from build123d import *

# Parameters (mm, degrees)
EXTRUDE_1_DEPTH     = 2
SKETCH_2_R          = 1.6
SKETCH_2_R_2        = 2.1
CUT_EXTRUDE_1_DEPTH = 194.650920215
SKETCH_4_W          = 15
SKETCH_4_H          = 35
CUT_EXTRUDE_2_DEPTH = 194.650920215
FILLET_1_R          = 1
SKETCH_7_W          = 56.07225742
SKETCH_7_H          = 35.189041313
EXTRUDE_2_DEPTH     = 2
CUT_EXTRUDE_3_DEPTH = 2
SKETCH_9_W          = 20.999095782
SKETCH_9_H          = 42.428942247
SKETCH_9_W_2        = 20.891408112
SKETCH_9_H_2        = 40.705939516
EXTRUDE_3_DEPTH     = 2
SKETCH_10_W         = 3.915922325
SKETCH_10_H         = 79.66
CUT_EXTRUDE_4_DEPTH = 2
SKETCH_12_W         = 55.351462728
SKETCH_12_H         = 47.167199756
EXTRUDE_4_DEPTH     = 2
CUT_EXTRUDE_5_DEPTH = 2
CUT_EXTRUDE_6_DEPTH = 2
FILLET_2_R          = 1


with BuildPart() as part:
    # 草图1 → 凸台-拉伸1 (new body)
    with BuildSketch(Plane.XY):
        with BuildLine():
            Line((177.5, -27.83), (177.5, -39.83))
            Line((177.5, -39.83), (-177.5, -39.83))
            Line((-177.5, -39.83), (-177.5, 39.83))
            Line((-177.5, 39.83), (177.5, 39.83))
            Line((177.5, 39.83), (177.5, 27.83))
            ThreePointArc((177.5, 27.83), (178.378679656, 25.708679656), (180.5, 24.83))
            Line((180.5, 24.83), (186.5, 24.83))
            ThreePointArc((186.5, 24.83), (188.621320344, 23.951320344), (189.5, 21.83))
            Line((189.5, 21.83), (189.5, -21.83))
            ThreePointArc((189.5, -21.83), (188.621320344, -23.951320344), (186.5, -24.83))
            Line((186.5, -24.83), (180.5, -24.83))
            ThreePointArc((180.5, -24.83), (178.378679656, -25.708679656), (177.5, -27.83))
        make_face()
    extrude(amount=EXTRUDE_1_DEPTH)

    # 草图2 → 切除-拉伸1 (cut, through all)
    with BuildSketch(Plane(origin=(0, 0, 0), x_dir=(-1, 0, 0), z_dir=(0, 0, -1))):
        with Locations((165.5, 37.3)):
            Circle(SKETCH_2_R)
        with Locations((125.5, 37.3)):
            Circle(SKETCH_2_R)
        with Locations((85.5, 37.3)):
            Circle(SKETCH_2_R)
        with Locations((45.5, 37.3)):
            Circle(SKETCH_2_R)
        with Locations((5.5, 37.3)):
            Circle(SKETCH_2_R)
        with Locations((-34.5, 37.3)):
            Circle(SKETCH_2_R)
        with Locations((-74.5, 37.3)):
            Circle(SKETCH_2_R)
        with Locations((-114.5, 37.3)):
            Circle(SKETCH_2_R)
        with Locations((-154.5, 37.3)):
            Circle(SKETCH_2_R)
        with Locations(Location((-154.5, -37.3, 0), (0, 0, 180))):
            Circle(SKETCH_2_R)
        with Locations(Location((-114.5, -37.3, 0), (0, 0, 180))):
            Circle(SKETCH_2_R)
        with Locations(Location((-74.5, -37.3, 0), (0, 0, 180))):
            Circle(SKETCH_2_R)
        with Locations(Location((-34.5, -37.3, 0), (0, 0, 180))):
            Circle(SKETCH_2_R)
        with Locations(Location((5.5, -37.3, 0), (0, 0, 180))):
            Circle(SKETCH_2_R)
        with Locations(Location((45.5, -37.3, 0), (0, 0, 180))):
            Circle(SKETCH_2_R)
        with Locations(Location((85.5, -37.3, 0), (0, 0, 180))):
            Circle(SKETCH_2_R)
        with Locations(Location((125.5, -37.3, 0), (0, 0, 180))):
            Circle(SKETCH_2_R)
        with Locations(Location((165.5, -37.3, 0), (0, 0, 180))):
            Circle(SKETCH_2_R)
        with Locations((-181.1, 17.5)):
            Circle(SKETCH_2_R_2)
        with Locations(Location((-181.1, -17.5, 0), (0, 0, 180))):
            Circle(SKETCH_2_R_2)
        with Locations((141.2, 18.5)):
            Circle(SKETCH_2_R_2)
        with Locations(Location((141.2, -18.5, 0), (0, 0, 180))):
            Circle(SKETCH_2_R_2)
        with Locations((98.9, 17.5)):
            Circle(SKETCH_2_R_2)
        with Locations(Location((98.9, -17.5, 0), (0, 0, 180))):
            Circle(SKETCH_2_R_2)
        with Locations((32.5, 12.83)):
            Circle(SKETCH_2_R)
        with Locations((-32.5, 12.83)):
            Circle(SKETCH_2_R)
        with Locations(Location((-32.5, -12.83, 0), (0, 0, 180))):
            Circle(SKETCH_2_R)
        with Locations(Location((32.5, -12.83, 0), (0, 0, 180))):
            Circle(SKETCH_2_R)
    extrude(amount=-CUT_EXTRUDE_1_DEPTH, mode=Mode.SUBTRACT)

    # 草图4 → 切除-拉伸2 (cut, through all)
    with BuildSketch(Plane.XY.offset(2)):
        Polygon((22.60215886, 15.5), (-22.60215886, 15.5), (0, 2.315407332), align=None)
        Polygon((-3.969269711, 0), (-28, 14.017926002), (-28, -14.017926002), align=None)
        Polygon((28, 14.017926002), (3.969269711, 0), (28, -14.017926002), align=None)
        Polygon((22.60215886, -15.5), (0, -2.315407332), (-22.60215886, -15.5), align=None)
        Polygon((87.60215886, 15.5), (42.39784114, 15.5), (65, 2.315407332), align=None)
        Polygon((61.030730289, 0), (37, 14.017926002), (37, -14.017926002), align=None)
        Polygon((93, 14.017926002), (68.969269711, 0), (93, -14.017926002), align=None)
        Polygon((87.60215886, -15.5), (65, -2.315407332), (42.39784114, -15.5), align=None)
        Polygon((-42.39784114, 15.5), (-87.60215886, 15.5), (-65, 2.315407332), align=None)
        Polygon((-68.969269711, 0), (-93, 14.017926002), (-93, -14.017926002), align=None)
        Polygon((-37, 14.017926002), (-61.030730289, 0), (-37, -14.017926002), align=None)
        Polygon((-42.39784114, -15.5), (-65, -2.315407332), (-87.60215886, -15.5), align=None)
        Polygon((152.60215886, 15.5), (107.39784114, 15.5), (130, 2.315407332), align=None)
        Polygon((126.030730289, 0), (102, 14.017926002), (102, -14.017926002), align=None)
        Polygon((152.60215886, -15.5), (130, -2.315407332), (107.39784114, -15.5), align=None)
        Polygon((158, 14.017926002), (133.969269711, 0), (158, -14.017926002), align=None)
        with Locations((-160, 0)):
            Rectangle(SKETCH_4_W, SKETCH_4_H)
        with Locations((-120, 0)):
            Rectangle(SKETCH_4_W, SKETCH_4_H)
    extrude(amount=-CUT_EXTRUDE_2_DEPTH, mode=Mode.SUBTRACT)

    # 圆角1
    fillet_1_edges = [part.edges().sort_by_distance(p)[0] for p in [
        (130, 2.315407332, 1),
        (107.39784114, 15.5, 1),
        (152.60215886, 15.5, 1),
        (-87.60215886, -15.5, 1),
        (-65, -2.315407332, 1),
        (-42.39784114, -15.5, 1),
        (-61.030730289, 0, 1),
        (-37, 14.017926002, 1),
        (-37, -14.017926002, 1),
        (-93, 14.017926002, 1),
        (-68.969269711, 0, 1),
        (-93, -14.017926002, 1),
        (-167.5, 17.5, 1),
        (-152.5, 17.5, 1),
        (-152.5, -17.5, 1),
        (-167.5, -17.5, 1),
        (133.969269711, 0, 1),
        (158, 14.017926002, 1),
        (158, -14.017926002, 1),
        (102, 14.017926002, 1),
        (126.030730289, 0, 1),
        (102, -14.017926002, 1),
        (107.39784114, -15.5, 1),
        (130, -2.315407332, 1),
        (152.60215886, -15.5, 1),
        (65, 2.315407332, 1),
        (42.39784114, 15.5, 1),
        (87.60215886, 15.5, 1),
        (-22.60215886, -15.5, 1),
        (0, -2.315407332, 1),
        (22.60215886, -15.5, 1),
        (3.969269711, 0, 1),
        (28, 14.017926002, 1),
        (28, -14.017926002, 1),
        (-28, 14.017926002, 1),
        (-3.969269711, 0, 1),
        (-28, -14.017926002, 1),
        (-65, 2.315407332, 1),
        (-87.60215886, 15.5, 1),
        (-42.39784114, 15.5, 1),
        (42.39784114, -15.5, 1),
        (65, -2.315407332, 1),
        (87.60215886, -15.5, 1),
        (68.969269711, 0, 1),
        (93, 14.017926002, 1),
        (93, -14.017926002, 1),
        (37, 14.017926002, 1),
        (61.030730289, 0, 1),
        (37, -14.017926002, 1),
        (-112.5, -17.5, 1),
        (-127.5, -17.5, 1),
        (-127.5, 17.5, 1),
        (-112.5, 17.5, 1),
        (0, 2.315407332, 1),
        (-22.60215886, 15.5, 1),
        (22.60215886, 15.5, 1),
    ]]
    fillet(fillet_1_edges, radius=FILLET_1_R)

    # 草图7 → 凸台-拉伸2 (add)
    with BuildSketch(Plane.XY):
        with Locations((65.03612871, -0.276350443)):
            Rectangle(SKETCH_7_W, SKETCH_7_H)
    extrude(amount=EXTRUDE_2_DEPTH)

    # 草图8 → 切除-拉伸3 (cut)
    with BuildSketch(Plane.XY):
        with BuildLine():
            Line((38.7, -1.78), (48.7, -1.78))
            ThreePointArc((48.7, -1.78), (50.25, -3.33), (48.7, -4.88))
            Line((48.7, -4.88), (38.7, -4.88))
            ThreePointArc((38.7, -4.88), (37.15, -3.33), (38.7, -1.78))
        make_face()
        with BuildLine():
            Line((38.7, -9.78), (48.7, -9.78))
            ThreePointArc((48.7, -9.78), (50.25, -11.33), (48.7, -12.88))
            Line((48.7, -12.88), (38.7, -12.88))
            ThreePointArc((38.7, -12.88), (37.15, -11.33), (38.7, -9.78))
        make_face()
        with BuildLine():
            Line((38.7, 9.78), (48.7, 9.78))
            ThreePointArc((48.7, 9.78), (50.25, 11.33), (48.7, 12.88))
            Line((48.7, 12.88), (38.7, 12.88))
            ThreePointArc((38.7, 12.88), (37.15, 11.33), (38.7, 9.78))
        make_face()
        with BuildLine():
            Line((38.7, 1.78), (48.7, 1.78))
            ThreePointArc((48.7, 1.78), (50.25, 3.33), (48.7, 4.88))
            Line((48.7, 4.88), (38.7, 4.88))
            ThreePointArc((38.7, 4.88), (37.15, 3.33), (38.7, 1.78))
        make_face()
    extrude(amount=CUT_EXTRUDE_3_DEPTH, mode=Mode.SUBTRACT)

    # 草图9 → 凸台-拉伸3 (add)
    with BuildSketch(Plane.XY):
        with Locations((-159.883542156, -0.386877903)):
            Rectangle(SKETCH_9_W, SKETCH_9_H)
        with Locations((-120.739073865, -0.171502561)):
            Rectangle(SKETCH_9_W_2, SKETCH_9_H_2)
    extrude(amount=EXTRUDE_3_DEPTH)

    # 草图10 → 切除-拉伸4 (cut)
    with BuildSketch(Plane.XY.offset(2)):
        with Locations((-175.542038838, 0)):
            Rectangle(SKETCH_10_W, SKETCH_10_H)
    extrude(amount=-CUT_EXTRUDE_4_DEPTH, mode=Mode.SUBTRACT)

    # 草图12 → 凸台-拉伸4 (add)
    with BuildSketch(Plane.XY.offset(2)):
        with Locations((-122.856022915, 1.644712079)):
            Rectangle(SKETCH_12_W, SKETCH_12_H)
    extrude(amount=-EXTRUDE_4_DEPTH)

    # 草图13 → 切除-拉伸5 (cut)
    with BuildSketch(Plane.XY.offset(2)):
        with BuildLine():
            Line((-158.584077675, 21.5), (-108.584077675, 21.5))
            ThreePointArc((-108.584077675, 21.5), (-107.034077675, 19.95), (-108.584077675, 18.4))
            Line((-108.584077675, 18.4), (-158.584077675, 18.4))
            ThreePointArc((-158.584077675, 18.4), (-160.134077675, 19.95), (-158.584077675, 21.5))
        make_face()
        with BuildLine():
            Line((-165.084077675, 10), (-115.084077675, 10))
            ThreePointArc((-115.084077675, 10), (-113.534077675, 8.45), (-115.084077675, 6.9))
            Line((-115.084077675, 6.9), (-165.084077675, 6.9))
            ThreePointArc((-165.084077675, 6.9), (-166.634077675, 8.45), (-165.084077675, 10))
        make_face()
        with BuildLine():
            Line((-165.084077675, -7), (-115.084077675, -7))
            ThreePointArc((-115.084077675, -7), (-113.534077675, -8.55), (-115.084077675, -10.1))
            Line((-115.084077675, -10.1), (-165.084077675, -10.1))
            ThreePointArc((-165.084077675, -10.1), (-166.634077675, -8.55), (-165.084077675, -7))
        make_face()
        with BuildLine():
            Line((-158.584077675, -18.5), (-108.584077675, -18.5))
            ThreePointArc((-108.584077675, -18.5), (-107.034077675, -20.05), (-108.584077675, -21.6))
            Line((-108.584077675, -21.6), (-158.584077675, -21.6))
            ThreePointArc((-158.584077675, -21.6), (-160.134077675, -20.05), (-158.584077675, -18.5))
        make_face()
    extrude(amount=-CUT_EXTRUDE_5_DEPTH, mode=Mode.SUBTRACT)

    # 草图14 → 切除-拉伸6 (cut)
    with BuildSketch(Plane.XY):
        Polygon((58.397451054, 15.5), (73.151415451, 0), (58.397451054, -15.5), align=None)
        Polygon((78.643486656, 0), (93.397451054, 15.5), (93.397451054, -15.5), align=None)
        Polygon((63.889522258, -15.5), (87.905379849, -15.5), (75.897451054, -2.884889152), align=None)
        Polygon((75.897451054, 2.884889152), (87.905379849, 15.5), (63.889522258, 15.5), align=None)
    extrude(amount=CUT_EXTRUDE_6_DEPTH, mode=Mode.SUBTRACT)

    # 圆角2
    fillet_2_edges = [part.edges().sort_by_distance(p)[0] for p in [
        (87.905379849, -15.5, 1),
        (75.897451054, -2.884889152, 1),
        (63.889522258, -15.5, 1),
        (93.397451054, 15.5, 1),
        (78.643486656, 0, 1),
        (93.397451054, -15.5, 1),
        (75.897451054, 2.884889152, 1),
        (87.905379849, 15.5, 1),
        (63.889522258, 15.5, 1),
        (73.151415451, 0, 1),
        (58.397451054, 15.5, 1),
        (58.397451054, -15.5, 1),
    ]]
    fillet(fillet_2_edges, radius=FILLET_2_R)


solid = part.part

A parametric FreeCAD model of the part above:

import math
import FreeCAD as App
import Part
import Sketcher
Q = App.Units.Quantity


def edges_at(feature, points):
    """Names of the edges that pass closest to the given points."""
    edges = feature.Shape.Edges
    near = lambda p: min(range(len(edges)), key=lambda i: edges[i].distToShape(Part.Vertex(*p))[0])
    return sorted({f"Edge{near(p) + 1}" for p in points})


def add_polygon(sketch, points):
    """Adds a closed chain of lines whose ends are joined by coincident constraints."""
    first, n = sketch.GeometryCount, len(points)
    for a, b in zip(points, points[1:] + points[:1]):
        sketch.addGeometry(Part.LineSegment(App.Vector(*a, 0), App.Vector(*b, 0)), False)
    for i in range(n):
        sketch.addConstraint(Sketcher.Constraint("Coincident", first + i, 2, first + (i + 1) % n, 1))

doc = App.newDocument("Part")
body = doc.addObject("PartDesign::Body", "Body")

# Sketch on XY plane
sketch1 = doc.addObject("Sketcher::SketchObject", "Sketch")
body.addObject(sketch1)
sketch1.AttachmentSupport = (doc.XY_Plane, [""])
sketch1.MapMode = "FlatFace"
sketch1.addGeometry([
    Part.LineSegment(App.Vector(177.5, -39.83, 0), App.Vector(177.5, -27.83, 0)),  # 0
    Part.ArcOfCircle(Part.Circle(App.Vector(180.5, -27.83, 0), App.Vector(0, 0, 1), 3), math.radians(90), math.radians(180)),  # 1
    Part.LineSegment(App.Vector(180.5, -24.83, 0), App.Vector(186.5, -24.83, 0)),  # 2
    Part.ArcOfCircle(Part.Circle(App.Vector(186.5, -21.83, 0), App.Vector(0, 0, 1), 3), math.radians(-90), math.radians(0)),  # 3
    Part.LineSegment(App.Vector(189.5, -21.83, 0), App.Vector(189.5, 21.83, 0)),  # 4
    Part.ArcOfCircle(Part.Circle(App.Vector(186.5, 21.83, 0), App.Vector(0, 0, 1), 3), math.radians(0), math.radians(90)),  # 5
    Part.LineSegment(App.Vector(186.5, 24.83, 0), App.Vector(180.5, 24.83, 0)),  # 6
    Part.ArcOfCircle(Part.Circle(App.Vector(180.5, 27.83, 0), App.Vector(0, 0, 1), 3), math.radians(180), math.radians(270)),  # 7
    Part.LineSegment(App.Vector(177.5, 27.83, 0), App.Vector(177.5, 39.83, 0)),  # 8
    Part.LineSegment(App.Vector(177.5, 39.83, 0), App.Vector(-177.5, 39.83, 0)),  # 9
    Part.LineSegment(App.Vector(-177.5, 39.83, 0), App.Vector(-177.5, -39.83, 0)),  # 10
    Part.LineSegment(App.Vector(-177.5, -39.83, 0), App.Vector(177.5, -39.83, 0)),  # 11
], False)
sketch1.addConstraint([
    Sketcher.Constraint("Tangent", 0, 2, 1, 2),
    Sketcher.Constraint("Tangent", 1, 1, 2, 1),
    Sketcher.Constraint("Tangent", 2, 2, 3, 1),
    Sketcher.Constraint("Tangent", 3, 2, 4, 1),
    Sketcher.Constraint("Tangent", 4, 2, 5, 1),
    Sketcher.Constraint("Tangent", 5, 2, 6, 1),
    Sketcher.Constraint("Tangent", 6, 2, 7, 2),
    Sketcher.Constraint("Tangent", 7, 1, 8, 1),
    Sketcher.Constraint("Coincident", 8, 2, 9, 1),
    Sketcher.Constraint("Coincident", 9, 2, 10, 1),
    Sketcher.Constraint("Coincident", 10, 2, 11, 1),
    Sketcher.Constraint("Coincident", 11, 2, 0, 1),
    Sketcher.Constraint("Vertical", 0),
    Sketcher.Constraint("Horizontal", 2),
    Sketcher.Constraint("Vertical", 4),
    Sketcher.Constraint("Horizontal", 6),
    Sketcher.Constraint("Vertical", 8),
    Sketcher.Constraint("Horizontal", 9),
    Sketcher.Constraint("Vertical", 10),
    Sketcher.Constraint("Horizontal", 11),
    Sketcher.Constraint("Equal", 1, 3),
    Sketcher.Constraint("Equal", 3, 5),
    Sketcher.Constraint("Equal", 5, 7),
    Sketcher.Constraint("Symmetric", 8, 2, 10, 2, -1, 1),
    Sketcher.Constraint("Symmetric", 1, 3, 7, 3, -1),
    Sketcher.Constraint("Radius", 1, Q("3 mm")),
    Sketcher.Constraint("DistanceX", 2, 1, 2, 2, Q("6 mm")),
    Sketcher.Constraint("DistanceX", 9, 2, 9, 1, Q("355 mm")),
    Sketcher.Constraint("DistanceY", 0, 1, 0, 2, Q("12 mm")),
    Sketcher.Constraint("DistanceY", 4, 1, 4, 2, Q("43.66 mm")),
])
pad1 = doc.addObject("PartDesign::Pad", "Pad")
body.addObject(pad1)
pad1.Profile = sketch1
pad1.Length = 2

# Sketch on XY plane
sketch2 = doc.addObject("Sketcher::SketchObject", "Sketch001")
body.addObject(sketch2)
sketch2.AttachmentSupport = (doc.XY_Plane, [""])
sketch2.MapMode = "FlatFace"
sketch2.addGeometry([
    Part.Circle(App.Vector(-165.5, 37.3, 0), App.Vector(0, 0, 1), 1.6),  # 0
    Part.Circle(App.Vector(-125.5, 37.3, 0), App.Vector(0, 0, 1), 1.6),  # 1
    Part.Circle(App.Vector(-85.5, 37.3, 0), App.Vector(0, 0, 1), 1.6),  # 2
    Part.Circle(App.Vector(-45.5, 37.3, 0), App.Vector(0, 0, 1), 1.6),  # 3
    Part.Circle(App.Vector(-5.5, 37.3, 0), App.Vector(0, 0, 1), 1.6),  # 4
    Part.Circle(App.Vector(34.5, 37.3, 0), App.Vector(0, 0, 1), 1.6),  # 5
    Part.Circle(App.Vector(74.5, 37.3, 0), App.Vector(0, 0, 1), 1.6),  # 6
    Part.Circle(App.Vector(114.5, 37.3, 0), App.Vector(0, 0, 1), 1.6),  # 7
    Part.Circle(App.Vector(154.5, 37.3, 0), App.Vector(0, 0, 1), 1.6),  # 8
    Part.Circle(App.Vector(154.5, -37.3, 0), App.Vector(0, 0, 1), 1.6),  # 9
    Part.Circle(App.Vector(114.5, -37.3, 0), App.Vector(0, 0, 1), 1.6),  # 10
    Part.Circle(App.Vector(74.5, -37.3, 0), App.Vector(0, 0, 1), 1.6),  # 11
    Part.Circle(App.Vector(34.5, -37.3, 0), App.Vector(0, 0, 1), 1.6),  # 12
    Part.Circle(App.Vector(-5.5, -37.3, 0), App.Vector(0, 0, 1), 1.6),  # 13
    Part.Circle(App.Vector(-45.5, -37.3, 0), App.Vector(0, 0, 1), 1.6),  # 14
    Part.Circle(App.Vector(-85.5, -37.3, 0), App.Vector(0, 0, 1), 1.6),  # 15
    Part.Circle(App.Vector(-125.5, -37.3, 0), App.Vector(0, 0, 1), 1.6),  # 16
    Part.Circle(App.Vector(-165.5, -37.3, 0), App.Vector(0, 0, 1), 1.6),  # 17
    Part.Circle(App.Vector(181.1, 17.5, 0), App.Vector(0, 0, 1), 2.1),  # 18
    Part.Circle(App.Vector(181.1, -17.5, 0), App.Vector(0, 0, 1), 2.1),  # 19
    Part.Circle(App.Vector(-141.2, 18.5, 0), App.Vector(0, 0, 1), 2.1),  # 20
    Part.Circle(App.Vector(-141.2, -18.5, 0), App.Vector(0, 0, 1), 2.1),  # 21
    Part.Circle(App.Vector(-98.9, 17.5, 0), App.Vector(0, 0, 1), 2.1),  # 22
    Part.Circle(App.Vector(-98.9, -17.5, 0), App.Vector(0, 0, 1), 2.1),  # 23
    Part.Circle(App.Vector(-32.5, 12.83, 0), App.Vector(0, 0, 1), 1.6),  # 24
    Part.Circle(App.Vector(32.5, 12.83, 0), App.Vector(0, 0, 1), 1.6),  # 25
    Part.Circle(App.Vector(32.5, -12.83, 0), App.Vector(0, 0, 1), 1.6),  # 26
    Part.Circle(App.Vector(-32.5, -12.83, 0), App.Vector(0, 0, 1), 1.6),  # 27
], False)
sketch2.addConstraint([
    Sketcher.Constraint("Equal", 0, 1),
    Sketcher.Constraint("Equal", 1, 2),
    Sketcher.Constraint("Equal", 2, 3),
    Sketcher.Constraint("Equal", 3, 4),
    Sketcher.Constraint("Equal", 4, 5),
    Sketcher.Constraint("Equal", 5, 6),
    Sketcher.Constraint("Equal", 6, 7),
    Sketcher.Constraint("Equal", 7, 8),
    Sketcher.Constraint("Equal", 8, 9),
    Sketcher.Constraint("Equal", 9, 10),
    Sketcher.Constraint("Equal", 10, 11),
    Sketcher.Constraint("Equal", 11, 12),
    Sketcher.Constraint("Equal", 12, 13),
    Sketcher.Constraint("Equal", 13, 14),
    Sketcher.Constraint("Equal", 14, 15),
    Sketcher.Constraint("Equal", 15, 16),
    Sketcher.Constraint("Equal", 16, 17),
    Sketcher.Constraint("Equal", 18, 19),
    Sketcher.Constraint("Equal", 19, 20),
    Sketcher.Constraint("Equal", 20, 21),
    Sketcher.Constraint("Equal", 21, 22),
    Sketcher.Constraint("Equal", 22, 23),
    Sketcher.Constraint("Equal", 17, 24),
    Sketcher.Constraint("Equal", 24, 25),
    Sketcher.Constraint("Equal", 25, 26),
    Sketcher.Constraint("Equal", 26, 27),
    Sketcher.Constraint("Symmetric", 24, 3, 26, 3, -1, 1),
    Sketcher.Constraint("Symmetric", 25, 3, 27, 3, -1, 1),
    Sketcher.Constraint("Symmetric", 24, 3, 25, 3, -2),
    Sketcher.Constraint("Symmetric", 8, 3, 9, 3, -1),
    Sketcher.Constraint("Symmetric", 7, 3, 10, 3, -1),
    Sketcher.Constraint("Symmetric", 6, 3, 11, 3, -1),
    Sketcher.Constraint("Symmetric", 5, 3, 12, 3, -1),
    Sketcher.Constraint("Symmetric", 4, 3, 13, 3, -1),
    Sketcher.Constraint("Symmetric", 3, 3, 14, 3, -1),
    Sketcher.Constraint("Symmetric", 2, 3, 15, 3, -1),
    Sketcher.Constraint("Symmetric", 1, 3, 16, 3, -1),
    Sketcher.Constraint("Symmetric", 0, 3, 17, 3, -1),
    Sketcher.Constraint("Symmetric", 18, 3, 19, 3, -1),
    Sketcher.Constraint("Symmetric", 20, 3, 21, 3, -1),
    Sketcher.Constraint("Symmetric", 22, 3, 23, 3, -1),
    Sketcher.Constraint("Horizontal", 0, 3, 1, 3),
    Sketcher.Constraint("Horizontal", 1, 3, 2, 3),
    Sketcher.Constraint("Horizontal", 2, 3, 3, 3),
    Sketcher.Constraint("Horizontal", 3, 3, 4, 3),
    Sketcher.Constraint("Horizontal", 4, 3, 5, 3),
    Sketcher.Constraint("Horizontal", 5, 3, 6, 3),
    Sketcher.Constraint("Horizontal", 6, 3, 7, 3),
    Sketcher.Constraint("Horizontal", 7, 3, 8, 3),
    Sketcher.Constraint("Horizontal", 18, 3, 22, 3),
    Sketcher.Constraint("Diameter", 0, Q("3.2 mm")),
    Sketcher.Constraint("Diameter", 18, Q("4.2 mm")),
    Sketcher.Constraint("DistanceX", 0, 3, 1, 3, Q("40 mm")),
    Sketcher.Constraint("DistanceX", 1, 3, 2, 3, Q("40 mm")),
    Sketcher.Constraint("DistanceX", 2, 3, 3, 3, Q("40 mm")),
    Sketcher.Constraint("DistanceX", 3, 3, 4, 3, Q("40 mm")),
    Sketcher.Constraint("DistanceX", 4, 3, 5, 3, Q("40 mm")),
    Sketcher.Constraint("DistanceX", 5, 3, 6, 3, Q("40 mm")),
    Sketcher.Constraint("DistanceX", 6, 3, 7, 3, Q("40 mm")),
    Sketcher.Constraint("DistanceX", 7, 3, 8, 3, Q("40 mm")),
    Sketcher.Constraint("DistanceY", 19, 3, 18, 3, Q("35 mm")),
    Sketcher.Constraint("DistanceY", 21, 3, 20, 3, Q("37 mm")),
    Sketcher.Constraint("DistanceX", 3, 3, 24, 3, Q("13 mm")),
    Sketcher.Constraint("DistanceX", 25, 3, 5, 3, Q("2 mm")),
    Sketcher.Constraint("DistanceY", -1, 1, 0, 3, Q("37.3 mm")),
    Sketcher.Constraint("DistanceX", -1, 1, 18, 3, Q("181.1 mm")),
    Sketcher.Constraint("DistanceX", 20, 3, -1, 1, Q("141.2 mm")),
    Sketcher.Constraint("DistanceX", 22, 3, -1, 1, Q("98.9 mm")),
    Sketcher.Constraint("DistanceY", -1, 1, 24, 3, Q("12.83 mm")),
])
pocket1 = doc.addObject("PartDesign::Pocket", "Pocket")
body.addObject(pocket1)
pocket1.Profile = sketch2
pocket1.Type = "ThroughAll"
pocket1.Reversed = True

# Sketch on XY plane
sketch3 = doc.addObject("Sketcher::SketchObject", "Sketch002")
body.addObject(sketch3)
sketch3.AttachmentSupport = (doc.XY_Plane, [""])
sketch3.MapMode = "FlatFace"
sketch3.AttachmentOffset = App.Placement(App.Vector(0, 0, 2), App.Rotation())
add_polygon(sketch3, [(22.602159, 15.5), (-22.602159, 15.5), (0, 2.315407)])  # lines 0-2
add_polygon(sketch3, [(-3.96927, 0), (-28, 14.017926), (-28, -14.017926)])  # lines 3-5
add_polygon(sketch3, [(28, 14.017926), (3.96927, 0), (28, -14.017926)])  # lines 6-8
add_polygon(sketch3, [(22.602159, -15.5), (0, -2.315407), (-22.602159, -15.5)])  # lines 9-11
add_polygon(sketch3, [(87.602159, 15.5), (42.397841, 15.5), (65, 2.315407)])  # lines 12-14
add_polygon(sketch3, [(61.03073, 0), (37, 14.017926), (37, -14.017926)])  # lines 15-17
add_polygon(sketch3, [(93, 14.017926), (68.96927, 0), (93, -14.017926)])  # lines 18-20
add_polygon(sketch3, [(87.602159, -15.5), (65, -2.315407), (42.397841, -15.5)])  # lines 21-23
add_polygon(sketch3, [(-42.397841, 15.5), (-87.602159, 15.5), (-65, 2.315407)])  # lines 24-26
add_polygon(sketch3, [(-68.96927, 0), (-93, 14.017926), (-93, -14.017926)])  # lines 27-29
add_polygon(sketch3, [(-37, 14.017926), (-61.03073, 0), (-37, -14.017926)])  # lines 30-32
add_polygon(sketch3, [(-42.397841, -15.5), (-65, -2.315407), (-87.602159, -15.5)])  # lines 33-35
add_polygon(sketch3, [(152.602159, 15.5), (107.397841, 15.5), (130, 2.315407)])  # lines 36-38
add_polygon(sketch3, [(126.03073, 0), (102, 14.017926), (102, -14.017926)])  # lines 39-41
add_polygon(sketch3, [(152.602159, -15.5), (130, -2.315407), (107.397841, -15.5)])  # lines 42-44
add_polygon(sketch3, [(158, 14.017926), (133.96927, 0), (158, -14.017926)])  # lines 45-47
add_polygon(sketch3, [(-167.5, 17.5), (-167.5, -17.5), (-152.5, -17.5), (-152.5, 17.5)])  # lines 48-51
add_polygon(sketch3, [(-127.5, 17.5), (-127.5, -17.5), (-112.5, -17.5), (-112.5, 17.5)])  # lines 52-55
sketch3.addConstraint([
    Sketcher.Constraint("Horizontal", 0),
    Sketcher.Constraint("Vertical", 4),
    Sketcher.Constraint("Vertical", 8),
    Sketcher.Constraint("Horizontal", 11),
    Sketcher.Constraint("Horizontal", 12),
    Sketcher.Constraint("Vertical", 16),
    Sketcher.Constraint("Vertical", 20),
    Sketcher.Constraint("Horizontal", 23),
    Sketcher.Constraint("Horizontal", 24),
    Sketcher.Constraint("Vertical", 28),
    Sketcher.Constraint("Vertical", 32),
    Sketcher.Constraint("Horizontal", 35),
    Sketcher.Constraint("Horizontal", 36),
    Sketcher.Constraint("Vertical", 40),
    Sketcher.Constraint("Horizontal", 44),
    Sketcher.Constraint("Vertical", 47),
    Sketcher.Constraint("Vertical", 48),
    Sketcher.Constraint("Horizontal", 49),
    Sketcher.Constraint("Vertical", 50),
    Sketcher.Constraint("Horizontal", 51),
    Sketcher.Constraint("Vertical", 52),
    Sketcher.Constraint("Horizontal", 53),
    Sketcher.Constraint("Vertical", 54),
    Sketcher.Constraint("Horizontal", 55),
    Sketcher.Constraint("Symmetric", 5, 2, 6, 2, -1, 1),
    Sketcher.Constraint("Symmetric", 3, 2, 7, 2, -1, 1),
    Sketcher.Constraint("Symmetric", 1, 2, 9, 2, -1, 1),
    Sketcher.Constraint("Symmetric", 2, 2, 10, 2, -1, 1),
    Sketcher.Constraint("Symmetric", 23, 2, 24, 2, -1, 1),
    Sketcher.Constraint("Symmetric", 21, 2, 25, 2, -1, 1),
    Sketcher.Constraint("Symmetric", 19, 2, 27, 2, -1, 1),
    Sketcher.Constraint("Symmetric", 18, 2, 29, 2, -1, 1),
    Sketcher.Constraint("Symmetric", 17, 2, 30, 2, -1, 1),
    Sketcher.Constraint("Symmetric", 15, 2, 31, 2, -1, 1),
    Sketcher.Constraint("Symmetric", 13, 2, 33, 2, -1, 1),
    Sketcher.Constraint("Symmetric", 14, 2, 34, 2, -1, 1),
    Sketcher.Constraint("Symmetric", 14, 2, 24, 2, -2),
    Sketcher.Constraint("Symmetric", 13, 2, 25, 2, -2),
    Sketcher.Constraint("Symmetric", 37, 2, 42, 2, -1),
    Sketcher.Constraint("Symmetric", 36, 2, 43, 2, -1),
    Sketcher.Constraint("PointOnObject", 1, 2, -2),
    Sketcher.Constraint("PointOnObject", 5, 2, -1),
    Sketcher.Constraint("PointOnObject", 17, 2, -1),
    Sketcher.Constraint("PointOnObject", 18, 2, -1),
    Sketcher.Constraint("PointOnObject", 41, 2, -1),
    Sketcher.Constraint("PointOnObject", 45, 2, -1),
    Sketcher.Constraint("Parallel", 1, 3),
    Sketcher.Constraint("Parallel", 2, 5),
    Sketcher.Constraint("Parallel", 5, 6),
    Sketcher.Constraint("Parallel", 7, 9),
    Sketcher.Constraint("Parallel", 9, 13),
    Sketcher.Constraint("Parallel", 10, 14),
    Sketcher.Constraint("Parallel", 13, 15),
    Sketcher.Constraint("Parallel", 14, 17),
    Sketcher.Constraint("Parallel", 17, 18),
    Sketcher.Constraint("Parallel", 15, 19),
    Sketcher.Constraint("Parallel", 19, 21),
    Sketcher.Constraint("Parallel", 18, 22),
    Sketcher.Constraint("Parallel", 22, 26),
    Sketcher.Constraint("Parallel", 26, 29),
    Sketcher.Constraint("Parallel", 29, 30),
    Sketcher.Constraint("Parallel", 31, 33),
    Sketcher.Constraint("Parallel", 33, 37),
    Sketcher.Constraint("Parallel", 34, 38),
    Sketcher.Constraint("Parallel", 37, 39),
    Sketcher.Constraint("Parallel", 38, 41),
    Sketcher.Constraint("Parallel", 39, 42),
    Sketcher.Constraint("Parallel", 43, 45),
    Sketcher.Constraint("Parallel", 42, 46),
    Sketcher.Constraint("Horizontal", 2, 2, 12, 2),
    Sketcher.Constraint("Horizontal", 1, 2, 13, 2),
    Sketcher.Constraint("Horizontal", 8, 2, 15, 2),
    Sketcher.Constraint("Horizontal", 16, 2, 19, 2),
    Sketcher.Constraint("Horizontal", 26, 2, 36, 2),
    Sketcher.Constraint("Horizontal", 25, 2, 37, 2),
    Sketcher.Constraint("Horizontal", 32, 2, 39, 2),
    Sketcher.Constraint("Horizontal", 40, 2, 46, 2),
    Sketcher.Constraint("Horizontal", 49, 2, 52, 2),
    Sketcher.Constraint("Horizontal", 51, 2, 54, 2),
    Sketcher.Constraint("Equal", 51, 53),
    Sketcher.Constraint("DistanceX", 49, 1, 49, 2, Q("15 mm")),
    Sketcher.Constraint("DistanceY", 48, 2, 48, 1, Q("35 mm")),
    Sketcher.Constraint("DistanceX", 3, 2, -1, 1, Q("28 mm")),
    Sketcher.Constraint("DistanceX", -1, 1, 13, 2, Q("65 mm")),
    Sketcher.Constraint("DistanceX", -1, 1, 15, 2, Q("37 mm")),
    Sketcher.Constraint("DistanceX", -1, 1, 19, 2, Q("93 mm")),
    Sketcher.Constraint("DistanceX", -1, 1, 37, 2, Q("130 mm")),
    Sketcher.Constraint("DistanceX", -1, 1, 39, 2, Q("102 mm")),
    Sketcher.Constraint("DistanceX", -1, 1, 46, 2, Q("158 mm")),
    Sketcher.Constraint("DistanceY", 11, 2, 12, 2, Q("31 mm")),
    Sketcher.Constraint("DistanceY", 48, 2, 34, 2, Q("2 mm")),
    Sketcher.Constraint("DistanceX", 49, 2, 52, 2, Q("25 mm")),
    Sketcher.Constraint("DistanceX", 48, 2, -1, 1, Q("167.5 mm")),
    Sketcher.Constraint("DistanceX", 0, 2, 0, 1, Q("45.204318 mm")),
    Sketcher.Constraint("DistanceY", 4, 2, 4, 1, Q("28.035852 mm")),
    Sketcher.Constraint("DistanceX", 5, 2, -1, 1, Q("3.96927 mm")),
])
pocket2 = doc.addObject("PartDesign::Pocket", "Pocket001")
body.addObject(pocket2)
pocket2.Profile = sketch3
pocket2.Type = "ThroughAll"
doc.recompute()

fillet = doc.addObject("PartDesign::Fillet", "Fillet")
body.addObject(fillet)
fillet.Base = (pocket2, edges_at(pocket2, [
    (130, 2.315, 1),
    (107.398, 15.5, 1),
    (152.602, 15.5, 1),
    (-87.602, -15.5, 1),
    (-65, -2.315, 1),
    (-42.398, -15.5, 1),
    (-61.031, 0, 1),
    (-37, 14.018, 1),
    (-37, -14.018, 1),
    (-93, 14.018, 1),
    (-68.969, 0, 1),
    (-93, -14.018, 1),
    (-167.5, 17.5, 1),
    (-152.5, 17.5, 1),
    (-152.5, -17.5, 1),
    (-167.5, -17.5, 1),
    (133.969, 0, 1),
    (158, 14.018, 1),
    (158, -14.018, 1),
    (102, 14.018, 1),
    (126.031, 0, 1),
    (102, -14.018, 1),
    (107.398, -15.5, 1),
    (130, -2.315, 1),
    (152.602, -15.5, 1),
    (65, 2.315, 1),
    (42.398, 15.5, 1),
    (87.602, 15.5, 1),
    (-22.602, -15.5, 1),
    (0, -2.315, 1),
    (22.602, -15.5, 1),
    (3.969, 0, 1),
    (28, 14.018, 1),
    (28, -14.018, 1),
    (-28, 14.018, 1),
    (-3.969, 0, 1),
    (-28, -14.018, 1),
    (-65, 2.315, 1),
    (-87.602, 15.5, 1),
    (-42.398, 15.5, 1),
    (42.398, -15.5, 1),
    (65, -2.315, 1),
    (87.602, -15.5, 1),
    (68.969, 0, 1),
    (93, 14.018, 1),
    (93, -14.018, 1),
    (37, 14.018, 1),
    (61.031, 0, 1),
    (37, -14.018, 1),
    (-112.5, -17.5, 1),
    (-127.5, -17.5, 1),
    (-127.5, 17.5, 1),
    (-112.5, 17.5, 1),
    (0, 2.315, 1),
    (-22.602, 15.5, 1),
    (22.602, 15.5, 1),
]))
fillet.Radius = 1

# Sketch on XY plane
sketch4 = doc.addObject("Sketcher::SketchObject", "Sketch003")
body.addObject(sketch4)
sketch4.AttachmentSupport = (doc.XY_Plane, [""])
sketch4.MapMode = "FlatFace"
add_polygon(sketch4, [(37, 17.31817), (37, -17.870871), (93.072257, -17.870871), (93.072257, 17.31817)])  # lines 0-3
sketch4.addConstraint([
    Sketcher.Constraint("Vertical", 0),
    Sketcher.Constraint("Horizontal", 1),
    Sketcher.Constraint("Vertical", 2),
    Sketcher.Constraint("Horizontal", 3),
    Sketcher.Constraint("DistanceX", -1, 1, 0, 2, Q("37 mm")),
    Sketcher.Constraint("DistanceY", 0, 2, 0, 1, Q("35.189041 mm")),
    Sketcher.Constraint("DistanceX", 1, 1, 1, 2, Q("56.072257 mm")),
    Sketcher.Constraint("DistanceY", 0, 2, -1, 1, Q("17.870871 mm")),
])
pad2 = doc.addObject("PartDesign::Pad", "Pad001")
body.addObject(pad2)
pad2.Profile = sketch4
pad2.Length = 2

# Sketch on XY plane
sketch5 = doc.addObject("Sketcher::SketchObject", "Sketch004")
body.addObject(sketch5)
sketch5.AttachmentSupport = (doc.XY_Plane, [""])
sketch5.MapMode = "FlatFace"
sketch5.addGeometry([
    Part.LineSegment(App.Vector(48.7, -1.78, 0), App.Vector(38.7, -1.78, 0)),  # 0
    Part.ArcOfCircle(Part.Circle(App.Vector(38.7, -3.33, 0), App.Vector(0, 0, 1), 1.55), math.radians(90), math.radians(270)),  # 1
    Part.LineSegment(App.Vector(38.7, -4.88, 0), App.Vector(48.7, -4.88, 0)),  # 2
    Part.ArcOfCircle(Part.Circle(App.Vector(48.7, -3.33, 0), App.Vector(0, 0, 1), 1.55), math.radians(-90), math.radians(90)),  # 3
    Part.LineSegment(App.Vector(48.7, -9.78, 0), App.Vector(38.7, -9.78, 0)),  # 4
    Part.ArcOfCircle(Part.Circle(App.Vector(38.7, -11.33, 0), App.Vector(0, 0, 1), 1.55), math.radians(90), math.radians(270)),  # 5
    Part.LineSegment(App.Vector(38.7, -12.88, 0), App.Vector(48.7, -12.88, 0)),  # 6
    Part.ArcOfCircle(Part.Circle(App.Vector(48.7, -11.33, 0), App.Vector(0, 0, 1), 1.55), math.radians(-90), math.radians(90)),  # 7
    Part.LineSegment(App.Vector(38.7, 9.78, 0), App.Vector(48.7, 9.78, 0)),  # 8
    Part.ArcOfCircle(Part.Circle(App.Vector(48.7, 11.33, 0), App.Vector(0, 0, 1), 1.55), math.radians(-90), math.radians(90)),  # 9
    Part.LineSegment(App.Vector(48.7, 12.88, 0), App.Vector(38.7, 12.88, 0)),  # 10
    Part.ArcOfCircle(Part.Circle(App.Vector(38.7, 11.33, 0), App.Vector(0, 0, 1), 1.55), math.radians(90), math.radians(270)),  # 11
    Part.LineSegment(App.Vector(38.7, 1.78, 0), App.Vector(48.7, 1.78, 0)),  # 12
    Part.ArcOfCircle(Part.Circle(App.Vector(48.7, 3.33, 0), App.Vector(0, 0, 1), 1.55), math.radians(-90), math.radians(90)),  # 13
    Part.LineSegment(App.Vector(48.7, 4.88, 0), App.Vector(38.7, 4.88, 0)),  # 14
    Part.ArcOfCircle(Part.Circle(App.Vector(38.7, 3.33, 0), App.Vector(0, 0, 1), 1.55), math.radians(90), math.radians(270)),  # 15
], False)
sketch5.addConstraint([
    Sketcher.Constraint("Tangent", 0, 2, 1, 1),
    Sketcher.Constraint("Tangent", 1, 2, 2, 1),
    Sketcher.Constraint("Tangent", 2, 2, 3, 1),
    Sketcher.Constraint("Tangent", 3, 2, 0, 1),
    Sketcher.Constraint("Tangent", 4, 2, 5, 1),
    Sketcher.Constraint("Tangent", 5, 2, 6, 1),
    Sketcher.Constraint("Tangent", 6, 2, 7, 1),
    Sketcher.Constraint("Tangent", 7, 2, 4, 1),
    Sketcher.Constraint("Tangent", 8, 2, 9, 1),
    Sketcher.Constraint("Tangent", 9, 2, 10, 1),
    Sketcher.Constraint("Tangent", 10, 2, 11, 1),
    Sketcher.Constraint("Tangent", 11, 2, 8, 1),
    Sketcher.Constraint("Tangent", 12, 2, 13, 1),
    Sketcher.Constraint("Tangent", 13, 2, 14, 1),
    Sketcher.Constraint("Tangent", 14, 2, 15, 1),
    Sketcher.Constraint("Tangent", 15, 2, 12, 1),
    Sketcher.Constraint("Horizontal", 0),
    Sketcher.Constraint("Horizontal", 2),
    Sketcher.Constraint("Horizontal", 4),
    Sketcher.Constraint("Horizontal", 6),
    Sketcher.Constraint("Horizontal", 8),
    Sketcher.Constraint("Horizontal", 10),
    Sketcher.Constraint("Horizontal", 12),
    Sketcher.Constraint("Horizontal", 14),
    Sketcher.Constraint("Equal", 3, 5),
    Sketcher.Constraint("Equal", 7, 9),
    Sketcher.Constraint("Equal", 11, 13),
    Sketcher.Constraint("Symmetric", 7, 3, 9, 3, -1),
    Sketcher.Constraint("Symmetric", 3, 3, 13, 3, -1),
    Sketcher.Constraint("Vertical", 1, 3, 5, 3),
    Sketcher.Constraint("Vertical", 3, 3, 7, 3),
    Sketcher.Constraint("Vertical", 5, 3, 11, 3),
    Sketcher.Constraint("Vertical", 11, 3, 15, 3),
    Sketcher.Constraint("DistanceX", 0, 2, 0, 1, Q("10 mm")),
    Sketcher.Constraint("Radius", 1, Q("1.55 mm")),
    Sketcher.Constraint("DistanceY", 5, 3, 1, 3, Q("8 mm")),
    Sketcher.Constraint("DistanceX", -1, 1, 1, 3, Q("38.7 mm")),
    Sketcher.Constraint("DistanceY", 1, 3, -1, 1, Q("3.33 mm")),
])
pocket3 = doc.addObject("PartDesign::Pocket", "Pocket002")
body.addObject(pocket3)
pocket3.Profile = sketch5
pocket3.Length = 2
pocket3.Reversed = True

# Sketch on XY plane
sketch6 = doc.addObject("Sketcher::SketchObject", "Sketch005")
body.addObject(sketch6)
sketch6.AttachmentSupport = (doc.XY_Plane, [""])
sketch6.MapMode = "FlatFace"
add_polygon(sketch6, [(-170.38309, 20.827593), (-170.38309, -21.601349), (-149.383994, -21.601349), (-149.383994, 20.827593)])  # lines 0-3
add_polygon(sketch6, [(-131.184778, 20.181467), (-131.184778, -20.524472), (-110.29337, -20.524472), (-110.29337, 20.181467)])  # lines 4-7
sketch6.addConstraint([
    Sketcher.Constraint("Vertical", 0),
    Sketcher.Constraint("Horizontal", 1),
    Sketcher.Constraint("Vertical", 2),
    Sketcher.Constraint("Horizontal", 3),
    Sketcher.Constraint("Vertical", 4),
    Sketcher.Constraint("Horizontal", 5),
    Sketcher.Constraint("Vertical", 6),
    Sketcher.Constraint("Horizontal", 7),
    Sketcher.Constraint("DistanceX", 5, 1, 5, 2, Q("20.891408 mm")),
    Sketcher.Constraint("DistanceY", 4, 2, 4, 1, Q("40.70594 mm")),
    Sketcher.Constraint("DistanceX", 1, 1, 1, 2, Q("20.999096 mm")),
    Sketcher.Constraint("DistanceY", 0, 2, 0, 1, Q("42.428942 mm")),
    Sketcher.Constraint("DistanceX", 0, 2, -1, 1, Q("170.38309 mm")),
    Sketcher.Constraint("DistanceY", 0, 2, -1, 1, Q("21.601349 mm")),
    Sketcher.Constraint("DistanceX", 5, 2, -1, 1, Q("110.29337 mm")),
    Sketcher.Constraint("DistanceY", 4, 2, -1, 1, Q("20.524472 mm")),
])
pad3 = doc.addObject("PartDesign::Pad", "Pad002")
body.addObject(pad3)
pad3.Profile = sketch6
pad3.Length = 2

# Sketch on XY plane
sketch7 = doc.addObject("Sketcher::SketchObject", "Sketch006")
body.addObject(sketch7)
sketch7.AttachmentSupport = (doc.XY_Plane, [""])
sketch7.MapMode = "FlatFace"
sketch7.AttachmentOffset = App.Placement(App.Vector(0, 0, 2), App.Rotation())
add_polygon(sketch7, [(-177.5, 39.83), (-177.5, -39.83), (-173.584078, -39.83), (-173.584078, 39.83)])  # lines 0-3
sketch7.addConstraint([
    Sketcher.Constraint("Vertical", 0),
    Sketcher.Constraint("Horizontal", 1),
    Sketcher.Constraint("Vertical", 2),
    Sketcher.Constraint("Horizontal", 3),
    Sketcher.Constraint("DistanceY", 0, 2, 0, 1, Q("79.66 mm")),
    Sketcher.Constraint("DistanceX", 0, 2, -1, 1, Q("177.5 mm")),
    Sketcher.Constraint("DistanceY", 0, 2, -1, 1, Q("39.83 mm")),
    Sketcher.Constraint("DistanceX", 1, 1, 1, 2, Q("3.915922 mm")),
])
pocket4 = doc.addObject("PartDesign::Pocket", "Pocket003")
body.addObject(pocket4)
pocket4.Profile = sketch7
pocket4.Length = 2

# Sketch on XY plane
sketch8 = doc.addObject("Sketcher::SketchObject", "Sketch007")
body.addObject(sketch8)
sketch8.AttachmentSupport = (doc.XY_Plane, [""])
sketch8.MapMode = "FlatFace"
sketch8.AttachmentOffset = App.Placement(App.Vector(0, 0, 2), App.Rotation())
add_polygon(sketch8, [(-150.531754, 25.228312), (-150.531754, -21.938888), (-95.180292, -21.938888), (-95.180292, 25.228312)])  # lines 0-3
sketch8.addConstraint([
    Sketcher.Constraint("Vertical", 0),
    Sketcher.Constraint("Horizontal", 1),
    Sketcher.Constraint("Vertical", 2),
    Sketcher.Constraint("Horizontal", 3),
    Sketcher.Constraint("DistanceY", 0, 2, 0, 1, Q("47.1672 mm")),
    Sketcher.Constraint("DistanceX", 1, 1, 1, 2, Q("55.351463 mm")),
    Sketcher.Constraint("DistanceX", 1, 2, -1, 1, Q("95.180292 mm")),
    Sketcher.Constraint("DistanceY", -1, 1, 2, 2, Q("25.228312 mm")),
])
pad4 = doc.addObject("PartDesign::Pad", "Pad003")
body.addObject(pad4)
pad4.Profile = sketch8
pad4.Length = 2
pad4.Reversed = True

# Sketch on XY plane
sketch9 = doc.addObject("Sketcher::SketchObject", "Sketch008")
body.addObject(sketch9)
sketch9.AttachmentSupport = (doc.XY_Plane, [""])
sketch9.MapMode = "FlatFace"
sketch9.AttachmentOffset = App.Placement(App.Vector(0, 0, 2), App.Rotation())
sketch9.addGeometry([
    Part.LineSegment(App.Vector(-108.584078, 21.5, 0), App.Vector(-158.584078, 21.5, 0)),  # 0
    Part.ArcOfCircle(Part.Circle(App.Vector(-158.584078, 19.95, 0), App.Vector(0, 0, 1), 1.55), math.radians(90), math.radians(270)),  # 1
    Part.LineSegment(App.Vector(-158.584078, 18.4, 0), App.Vector(-108.584078, 18.4, 0)),  # 2
    Part.ArcOfCircle(Part.Circle(App.Vector(-108.584078, 19.95, 0), App.Vector(0, 0, 1), 1.55), math.radians(-90), math.radians(90)),  # 3
    Part.LineSegment(App.Vector(-115.084078, 10, 0), App.Vector(-165.084078, 10, 0)),  # 4
    Part.ArcOfCircle(Part.Circle(App.Vector(-165.084078, 8.45, 0), App.Vector(0, 0, 1), 1.55), math.radians(90), math.radians(270)),  # 5
    Part.LineSegment(App.Vector(-165.084078, 6.9, 0), App.Vector(-115.084078, 6.9, 0)),  # 6
    Part.ArcOfCircle(Part.Circle(App.Vector(-115.084078, 8.45, 0), App.Vector(0, 0, 1), 1.55), math.radians(-90), math.radians(90)),  # 7
    Part.LineSegment(App.Vector(-115.084078, -7, 0), App.Vector(-165.084078, -7, 0)),  # 8
    Part.ArcOfCircle(Part.Circle(App.Vector(-165.084078, -8.55, 0), App.Vector(0, 0, 1), 1.55), math.radians(90), math.radians(270)),  # 9
    Part.LineSegment(App.Vector(-165.084078, -10.1, 0), App.Vector(-115.084078, -10.1, 0)),  # 10
    Part.ArcOfCircle(Part.Circle(App.Vector(-115.084078, -8.55, 0), App.Vector(0, 0, 1), 1.55), math.radians(-90), math.radians(90)),  # 11
    Part.LineSegment(App.Vector(-108.584078, -18.5, 0), App.Vector(-158.584078, -18.5, 0)),  # 12
    Part.ArcOfCircle(Part.Circle(App.Vector(-158.584078, -20.05, 0), App.Vector(0, 0, 1), 1.55), math.radians(90), math.radians(270)),  # 13
    Part.LineSegment(App.Vector(-158.584078, -21.6, 0), App.Vector(-108.584078, -21.6, 0)),  # 14
    Part.ArcOfCircle(Part.Circle(App.Vector(-108.584078, -20.05, 0), App.Vector(0, 0, 1), 1.55), math.radians(-90), math.radians(90)),  # 15
], False)
sketch9.addConstraint([
    Sketcher.Constraint("Tangent", 0, 2, 1, 1),
    Sketcher.Constraint("Tangent", 1, 2, 2, 1),
    Sketcher.Constraint("Tangent", 2, 2, 3, 1),
    Sketcher.Constraint("Tangent", 3, 2, 0, 1),
    Sketcher.Constraint("Tangent", 4, 2, 5, 1),
    Sketcher.Constraint("Tangent", 5, 2, 6, 1),
    Sketcher.Constraint("Tangent", 6, 2, 7, 1),
    Sketcher.Constraint("Tangent", 7, 2, 4, 1),
    Sketcher.Constraint("Tangent", 8, 2, 9, 1),
    Sketcher.Constraint("Tangent", 9, 2, 10, 1),
    Sketcher.Constraint("Tangent", 10, 2, 11, 1),
    Sketcher.Constraint("Tangent", 11, 2, 8, 1),
    Sketcher.Constraint("Tangent", 12, 2, 13, 1),
    Sketcher.Constraint("Tangent", 13, 2, 14, 1),
    Sketcher.Constraint("Tangent", 14, 2, 15, 1),
    Sketcher.Constraint("Tangent", 15, 2, 12, 1),
    Sketcher.Constraint("Horizontal", 0),
    Sketcher.Constraint("Horizontal", 2),
    Sketcher.Constraint("Horizontal", 4),
    Sketcher.Constraint("Horizontal", 6),
    Sketcher.Constraint("Horizontal", 8),
    Sketcher.Constraint("Horizontal", 10),
    Sketcher.Constraint("Horizontal", 12),
    Sketcher.Constraint("Horizontal", 14),
    Sketcher.Constraint("Equal", 3, 5),
    Sketcher.Constraint("Equal", 7, 9),
    Sketcher.Constraint("Equal", 11, 13),
    Sketcher.Constraint("Vertical", 5, 3, 9, 3),
    Sketcher.Constraint("Vertical", 7, 3, 11, 3),
    Sketcher.Constraint("Vertical", 1, 3, 13, 3),
    Sketcher.Constraint("Vertical", 3, 3, 15, 3),
    Sketcher.Constraint("Equal", 2, 4),
    Sketcher.Constraint("DistanceX", 0, 2, 0, 1, Q("50 mm")),
    Sketcher.Constraint("Radius", 1, Q("1.55 mm")),
    Sketcher.Constraint("DistanceY", -1, 1, 4, 2, Q("10 mm")),
    Sketcher.Constraint("DistanceY", 8, 2, -1, 1, Q("7 mm")),
    Sketcher.Constraint("DistanceY", 13, 3, 1, 3, Q("40 mm")),
    Sketcher.Constraint("DistanceY", -1, 1, 0, 2, Q("21.5 mm")),
    Sketcher.Constraint("DistanceX", 5, 3, 1, 3, Q("6.5 mm")),
    Sketcher.Constraint("DistanceX", 1, 3, -1, 1, Q("158.584078 mm")),
])
pocket5 = doc.addObject("PartDesign::Pocket", "Pocket004")
body.addObject(pocket5)
pocket5.Profile = sketch9
pocket5.Length = 2

# Sketch on XY plane
sketch10 = doc.addObject("Sketcher::SketchObject", "Sketch009")
body.addObject(sketch10)
sketch10.AttachmentSupport = (doc.XY_Plane, [""])
sketch10.MapMode = "FlatFace"
add_polygon(sketch10, [(73.151415, 0), (58.397451, 15.5), (58.397451, -15.5)])  # lines 0-2
add_polygon(sketch10, [(93.397451, 15.5), (78.643487, 0), (93.397451, -15.5)])  # lines 3-5
add_polygon(sketch10, [(63.889522, -15.5), (87.90538, -15.5), (75.897451, -2.884889)])  # lines 6-8
add_polygon(sketch10, [(75.897451, 2.884889), (87.90538, 15.5), (63.889522, 15.5)])  # lines 9-11
sketch10.addConstraint([
    Sketcher.Constraint("Vertical", 1),
    Sketcher.Constraint("Vertical", 5),
    Sketcher.Constraint("Horizontal", 6),
    Sketcher.Constraint("Horizontal", 10),
    Sketcher.Constraint("Symmetric", 6, 2, 9, 2, -1),
    Sketcher.Constraint("Symmetric", 7, 2, 11, 2, -1),
    Sketcher.Constraint("PointOnObject", 2, 2, -1),
    Sketcher.Constraint("PointOnObject", 3, 2, -1),
    Sketcher.Constraint("Parallel", 2, 3),
    Sketcher.Constraint("Parallel", 0, 4),
    Sketcher.Constraint("Parallel", 4, 7),
    Sketcher.Constraint("Parallel", 3, 8),
    Sketcher.Constraint("Parallel", 8, 9),
    Sketcher.Constraint("Parallel", 7, 11),
    Sketcher.Constraint("Horizontal", 1, 2, 4, 2),
    Sketcher.Constraint("Horizontal", 4, 2, 6, 2),
    Sketcher.Constraint("DistanceY", 1, 2, 1, 1, Q("31 mm")),
    Sketcher.Constraint("DistanceX", 1, 2, 4, 2, Q("35 mm")),
    Sketcher.Constraint("DistanceX", 1, 2, 7, 2, Q("17.5 mm")),
    Sketcher.Constraint("Distance", 7, Q("17.416411 mm")),
    Sketcher.Constraint("DistanceX", 6, 1, 6, 2, Q("24.015858 mm")),
    Sketcher.Constraint("DistanceX", -1, 1, 0, 2, Q("58.397451 mm")),
])
pocket6 = doc.addObject("PartDesign::Pocket", "Pocket005")
body.addObject(pocket6)
pocket6.Profile = sketch10
pocket6.Length = 2
pocket6.Reversed = True
doc.recompute()

fillet2 = doc.addObject("PartDesign::Fillet", "Fillet001")
body.addObject(fillet2)
fillet2.Base = (pocket6, edges_at(pocket6, [
    (87.905, -15.5, 1),
    (75.897, -2.885, 1),
    (63.89, -15.5, 1),
    (93.397, 15.5, 1),
    (78.643, 0, 1),
    (93.397, -15.5, 1),
    (75.897, 2.885, 1),
    (87.905, 15.5, 1),
    (63.89, 15.5, 1),
    (73.151, 0, 1),
    (58.397, 15.5, 1),
    (58.397, -15.5, 1),
]))
fillet2.Radius = 1

doc.recompute()
